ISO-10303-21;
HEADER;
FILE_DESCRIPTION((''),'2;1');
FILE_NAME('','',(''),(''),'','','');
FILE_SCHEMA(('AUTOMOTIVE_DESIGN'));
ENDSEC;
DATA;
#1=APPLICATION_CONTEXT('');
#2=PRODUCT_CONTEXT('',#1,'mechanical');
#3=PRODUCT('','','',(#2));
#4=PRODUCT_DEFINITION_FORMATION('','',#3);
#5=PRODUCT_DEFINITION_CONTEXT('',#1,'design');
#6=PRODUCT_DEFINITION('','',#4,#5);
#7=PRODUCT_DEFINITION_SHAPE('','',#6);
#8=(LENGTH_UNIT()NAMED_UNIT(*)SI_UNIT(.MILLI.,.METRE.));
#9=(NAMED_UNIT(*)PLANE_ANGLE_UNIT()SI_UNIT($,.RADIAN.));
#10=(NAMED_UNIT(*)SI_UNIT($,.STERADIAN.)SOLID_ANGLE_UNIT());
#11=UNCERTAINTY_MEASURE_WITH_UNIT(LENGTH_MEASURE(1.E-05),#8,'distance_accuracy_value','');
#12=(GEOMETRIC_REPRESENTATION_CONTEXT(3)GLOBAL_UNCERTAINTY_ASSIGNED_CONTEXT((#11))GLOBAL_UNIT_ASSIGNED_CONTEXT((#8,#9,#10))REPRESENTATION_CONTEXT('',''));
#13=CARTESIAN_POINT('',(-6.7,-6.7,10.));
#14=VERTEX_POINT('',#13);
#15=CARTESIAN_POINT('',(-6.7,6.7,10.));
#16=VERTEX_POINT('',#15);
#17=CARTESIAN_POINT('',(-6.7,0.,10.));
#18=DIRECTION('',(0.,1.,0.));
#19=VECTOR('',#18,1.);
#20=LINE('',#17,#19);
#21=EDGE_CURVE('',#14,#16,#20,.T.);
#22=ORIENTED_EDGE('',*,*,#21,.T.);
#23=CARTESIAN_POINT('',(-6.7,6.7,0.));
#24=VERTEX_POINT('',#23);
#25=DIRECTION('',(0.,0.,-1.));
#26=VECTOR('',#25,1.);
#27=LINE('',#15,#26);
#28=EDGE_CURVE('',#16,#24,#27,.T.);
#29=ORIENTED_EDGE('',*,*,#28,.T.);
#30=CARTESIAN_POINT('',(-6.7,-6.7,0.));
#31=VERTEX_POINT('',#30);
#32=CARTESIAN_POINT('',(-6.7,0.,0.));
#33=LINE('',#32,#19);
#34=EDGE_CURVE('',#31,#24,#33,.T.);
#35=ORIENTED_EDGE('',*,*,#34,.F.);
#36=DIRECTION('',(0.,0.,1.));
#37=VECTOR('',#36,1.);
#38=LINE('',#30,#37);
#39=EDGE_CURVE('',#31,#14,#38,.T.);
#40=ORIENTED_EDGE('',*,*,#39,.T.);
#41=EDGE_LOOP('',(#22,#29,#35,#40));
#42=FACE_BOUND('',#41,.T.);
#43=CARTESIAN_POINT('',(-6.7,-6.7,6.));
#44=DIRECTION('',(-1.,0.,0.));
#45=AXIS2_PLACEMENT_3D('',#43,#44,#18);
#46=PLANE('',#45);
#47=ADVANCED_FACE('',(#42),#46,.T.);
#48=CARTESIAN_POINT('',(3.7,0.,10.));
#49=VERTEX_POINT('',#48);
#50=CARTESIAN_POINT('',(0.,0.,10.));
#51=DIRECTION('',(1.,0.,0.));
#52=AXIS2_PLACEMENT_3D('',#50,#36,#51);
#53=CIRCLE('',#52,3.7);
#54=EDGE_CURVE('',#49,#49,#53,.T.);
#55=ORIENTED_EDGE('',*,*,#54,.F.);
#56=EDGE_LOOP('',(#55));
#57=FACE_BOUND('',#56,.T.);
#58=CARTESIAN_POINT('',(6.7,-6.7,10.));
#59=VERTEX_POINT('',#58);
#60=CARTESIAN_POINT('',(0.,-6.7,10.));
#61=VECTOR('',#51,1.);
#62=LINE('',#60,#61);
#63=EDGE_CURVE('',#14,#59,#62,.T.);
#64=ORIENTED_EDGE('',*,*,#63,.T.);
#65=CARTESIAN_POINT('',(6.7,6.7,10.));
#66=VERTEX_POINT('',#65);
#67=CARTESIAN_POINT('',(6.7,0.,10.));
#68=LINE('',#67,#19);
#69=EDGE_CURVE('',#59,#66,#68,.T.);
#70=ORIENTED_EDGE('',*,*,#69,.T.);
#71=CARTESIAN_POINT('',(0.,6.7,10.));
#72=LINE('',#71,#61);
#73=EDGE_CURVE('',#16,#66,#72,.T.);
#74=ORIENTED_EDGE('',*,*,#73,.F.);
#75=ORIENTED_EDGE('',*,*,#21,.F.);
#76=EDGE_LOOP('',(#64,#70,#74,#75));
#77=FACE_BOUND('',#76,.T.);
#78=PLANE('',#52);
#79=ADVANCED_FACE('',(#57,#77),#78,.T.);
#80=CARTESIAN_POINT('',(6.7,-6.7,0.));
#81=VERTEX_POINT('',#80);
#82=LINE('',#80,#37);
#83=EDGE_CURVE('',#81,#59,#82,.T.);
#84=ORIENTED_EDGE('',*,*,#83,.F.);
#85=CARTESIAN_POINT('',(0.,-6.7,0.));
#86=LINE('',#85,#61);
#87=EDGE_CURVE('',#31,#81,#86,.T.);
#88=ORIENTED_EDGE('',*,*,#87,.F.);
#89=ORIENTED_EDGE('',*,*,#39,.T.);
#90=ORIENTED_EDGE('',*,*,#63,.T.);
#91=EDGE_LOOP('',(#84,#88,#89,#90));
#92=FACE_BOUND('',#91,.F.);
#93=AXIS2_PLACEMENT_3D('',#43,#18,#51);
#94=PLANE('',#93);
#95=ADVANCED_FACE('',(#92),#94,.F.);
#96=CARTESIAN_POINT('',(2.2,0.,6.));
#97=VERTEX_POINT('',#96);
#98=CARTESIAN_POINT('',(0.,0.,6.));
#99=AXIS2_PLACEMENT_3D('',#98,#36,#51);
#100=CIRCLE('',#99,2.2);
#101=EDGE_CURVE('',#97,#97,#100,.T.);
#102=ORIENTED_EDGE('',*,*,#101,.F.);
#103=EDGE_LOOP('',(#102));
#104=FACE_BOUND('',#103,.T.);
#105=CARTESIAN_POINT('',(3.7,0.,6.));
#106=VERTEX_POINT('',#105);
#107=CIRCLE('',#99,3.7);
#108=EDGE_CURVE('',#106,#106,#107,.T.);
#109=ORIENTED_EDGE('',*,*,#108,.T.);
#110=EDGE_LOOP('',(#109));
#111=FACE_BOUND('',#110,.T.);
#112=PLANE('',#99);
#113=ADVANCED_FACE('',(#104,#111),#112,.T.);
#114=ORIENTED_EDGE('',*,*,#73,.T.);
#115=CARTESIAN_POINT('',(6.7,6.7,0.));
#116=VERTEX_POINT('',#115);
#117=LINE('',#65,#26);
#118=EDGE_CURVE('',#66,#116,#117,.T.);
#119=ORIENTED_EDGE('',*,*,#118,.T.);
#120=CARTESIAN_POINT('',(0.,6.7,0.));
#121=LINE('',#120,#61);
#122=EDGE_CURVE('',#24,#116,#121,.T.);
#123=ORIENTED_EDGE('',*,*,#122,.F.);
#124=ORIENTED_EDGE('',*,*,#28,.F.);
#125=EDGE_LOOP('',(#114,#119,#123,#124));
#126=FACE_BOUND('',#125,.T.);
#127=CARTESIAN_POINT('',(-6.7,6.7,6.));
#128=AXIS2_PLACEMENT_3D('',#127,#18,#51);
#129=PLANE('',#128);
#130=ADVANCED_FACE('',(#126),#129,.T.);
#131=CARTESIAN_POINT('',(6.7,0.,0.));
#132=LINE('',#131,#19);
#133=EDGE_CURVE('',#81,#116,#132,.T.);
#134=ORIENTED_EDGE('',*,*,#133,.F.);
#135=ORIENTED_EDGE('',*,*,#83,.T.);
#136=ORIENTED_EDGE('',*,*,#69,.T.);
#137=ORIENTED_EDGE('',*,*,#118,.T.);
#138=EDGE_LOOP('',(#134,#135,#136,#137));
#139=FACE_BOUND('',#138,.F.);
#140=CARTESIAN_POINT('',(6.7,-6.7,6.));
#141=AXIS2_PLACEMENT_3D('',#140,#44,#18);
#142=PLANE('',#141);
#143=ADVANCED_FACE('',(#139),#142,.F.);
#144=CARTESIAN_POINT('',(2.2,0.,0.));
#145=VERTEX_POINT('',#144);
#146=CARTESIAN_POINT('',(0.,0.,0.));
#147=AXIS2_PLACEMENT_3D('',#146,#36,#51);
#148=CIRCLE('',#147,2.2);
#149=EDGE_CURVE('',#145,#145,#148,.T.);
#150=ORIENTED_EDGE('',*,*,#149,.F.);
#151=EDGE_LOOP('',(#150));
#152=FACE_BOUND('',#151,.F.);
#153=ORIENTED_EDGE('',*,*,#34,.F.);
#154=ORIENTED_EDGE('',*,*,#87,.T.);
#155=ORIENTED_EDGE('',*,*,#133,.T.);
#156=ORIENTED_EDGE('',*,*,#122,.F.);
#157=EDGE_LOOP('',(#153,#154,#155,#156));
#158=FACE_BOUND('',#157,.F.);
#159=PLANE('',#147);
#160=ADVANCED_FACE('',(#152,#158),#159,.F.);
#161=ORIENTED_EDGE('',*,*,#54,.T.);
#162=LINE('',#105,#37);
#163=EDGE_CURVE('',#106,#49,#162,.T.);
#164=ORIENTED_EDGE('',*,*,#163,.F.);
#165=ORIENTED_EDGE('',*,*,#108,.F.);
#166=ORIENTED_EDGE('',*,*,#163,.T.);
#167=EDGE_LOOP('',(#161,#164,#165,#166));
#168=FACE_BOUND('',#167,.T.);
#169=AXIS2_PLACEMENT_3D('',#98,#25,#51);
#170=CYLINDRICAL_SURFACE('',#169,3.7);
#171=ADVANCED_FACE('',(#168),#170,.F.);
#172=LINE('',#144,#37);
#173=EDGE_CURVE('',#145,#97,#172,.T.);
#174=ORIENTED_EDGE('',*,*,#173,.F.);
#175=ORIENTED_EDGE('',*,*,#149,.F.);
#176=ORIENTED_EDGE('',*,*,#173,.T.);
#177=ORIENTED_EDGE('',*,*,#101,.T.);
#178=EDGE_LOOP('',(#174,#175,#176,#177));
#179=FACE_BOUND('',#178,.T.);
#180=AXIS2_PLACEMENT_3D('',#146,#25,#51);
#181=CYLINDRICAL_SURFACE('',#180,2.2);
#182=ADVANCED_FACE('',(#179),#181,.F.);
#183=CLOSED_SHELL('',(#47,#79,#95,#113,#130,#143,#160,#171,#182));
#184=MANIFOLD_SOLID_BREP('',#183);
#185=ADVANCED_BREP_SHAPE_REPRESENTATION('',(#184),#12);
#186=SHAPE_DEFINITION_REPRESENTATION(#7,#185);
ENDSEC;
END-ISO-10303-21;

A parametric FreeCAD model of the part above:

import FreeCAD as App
import Part
import Sketcher
from FreeCAD import Vector
Q = App.Units.Quantity


def add_polygon(sketch, points):
    """Adds a closed chain of lines whose ends are joined by coincident constraints."""
    first, n = sketch.GeometryCount, len(points)
    for a, b in zip(points, points[1:] + points[:1]):
        sketch.addGeometry(Part.LineSegment(App.Vector(*a, 0), App.Vector(*b, 0)), False)
    for i in range(n):
        sketch.addConstraint(Sketcher.Constraint("Coincident", first + i, 2, first + (i + 1) % n, 1))

doc = App.newDocument("Part")
body = doc.addObject("PartDesign::Body", "Body")

sketch1 = doc.addObject("Sketcher::SketchObject", "Sketch")
body.addObject(sketch1)
sketch1.AttachmentSupport = (doc.XY_Plane, [""])
sketch1.MapMode = "FlatFace"
add_polygon(sketch1, [(-6.7, 6.7), (-6.7, -6.7), (6.7, -6.7), (6.7, 6.7)])
sketch1.addGeometry(Part.Circle(Vector(0, 0, 0), Vector(0, 0, 1), 2.2), False)
sketch1.addConstraint([
    Sketcher.Constraint("Vertical", 0),
    Sketcher.Constraint("Horizontal", 1),
    Sketcher.Constraint("Vertical", 2),
    Sketcher.Constraint("Horizontal", 3),
    Sketcher.Constraint("Coincident", 4, 3, -1, 1),
    Sketcher.Constraint("Symmetric", 0, 2, 2, 2, -1, 1),
    Sketcher.Constraint("Equal", 3, 0),
    Sketcher.Constraint("Diameter", 4, Q("4.4 mm")),
    Sketcher.Constraint("DistanceX", 1, 1, 1, 2, Q("13.4 mm")),
])
pad1 = doc.addObject("PartDesign::Pad", "Pad")
body.addObject(pad1)
pad1.Profile = sketch1
pad1.Length = 6

sketch2 = doc.addObject("Sketcher::SketchObject", "Sketch001")
body.addObject(sketch2)
sketch2.AttachmentSupport = (doc.XY_Plane, [""])
sketch2.MapMode = "FlatFace"
sketch2.AttachmentOffset = App.Placement(Vector(0, 0, 6), App.Rotation())
add_polygon(sketch2, [(-6.7, 6.7), (-6.7, -6.7), (6.7, -6.7), (6.7, 6.7)])
sketch2.addGeometry(Part.Circle(Vector(0, 0, 0), Vector(0, 0, 1), 3.7), False)
sketch2.addConstraint([
    Sketcher.Constraint("Vertical", 0),
    Sketcher.Constraint("Horizontal", 1),
    Sketcher.Constraint("Vertical", 2),
    Sketcher.Constraint("Horizontal", 3),
    Sketcher.Constraint("Coincident", 4, 3, -1, 1),
    Sketcher.Constraint("Symmetric", 0, 2, 2, 2, -1, 1),
    Sketcher.Constraint("Equal", 3, 0),
    Sketcher.Constraint("Diameter", 4, Q("7.4 mm")),
    Sketcher.Constraint("DistanceX", 1, 1, 1, 2, Q("13.4 mm")),
])
pad2 = doc.addObject("PartDesign::Pad", "Pad001")
body.addObject(pad2)
pad2.Profile = sketch2
pad2.Length = 4

doc.recompute()
